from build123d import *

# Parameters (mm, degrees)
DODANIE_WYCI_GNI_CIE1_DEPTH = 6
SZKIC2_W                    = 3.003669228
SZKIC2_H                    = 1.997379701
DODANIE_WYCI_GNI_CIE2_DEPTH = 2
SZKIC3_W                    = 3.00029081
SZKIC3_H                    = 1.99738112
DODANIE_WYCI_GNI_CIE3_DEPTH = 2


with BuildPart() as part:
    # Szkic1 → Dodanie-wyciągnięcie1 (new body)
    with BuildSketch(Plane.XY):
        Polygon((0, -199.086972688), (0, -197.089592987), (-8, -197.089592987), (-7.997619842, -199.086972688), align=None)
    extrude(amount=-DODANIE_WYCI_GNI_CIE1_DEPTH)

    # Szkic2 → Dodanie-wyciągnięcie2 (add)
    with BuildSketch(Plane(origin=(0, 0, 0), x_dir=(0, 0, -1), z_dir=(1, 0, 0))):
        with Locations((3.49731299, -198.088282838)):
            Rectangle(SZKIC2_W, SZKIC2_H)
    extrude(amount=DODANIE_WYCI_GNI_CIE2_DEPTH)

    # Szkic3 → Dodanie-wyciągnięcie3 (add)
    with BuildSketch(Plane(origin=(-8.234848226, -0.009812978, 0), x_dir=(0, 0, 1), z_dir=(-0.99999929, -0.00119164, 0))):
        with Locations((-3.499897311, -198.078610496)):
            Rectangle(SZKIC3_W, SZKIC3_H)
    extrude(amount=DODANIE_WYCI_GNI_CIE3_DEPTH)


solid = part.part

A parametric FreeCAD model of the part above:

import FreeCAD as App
import Part
import Sketcher


def add_polygon(sketch, points):
    """Adds a closed chain of lines whose ends are joined by coincident constraints."""
    first, n = sketch.GeometryCount, len(points)
    for a, b in zip(points, points[1:] + points[:1]):
        sketch.addGeometry(Part.LineSegment(App.Vector(*a, 0), App.Vector(*b, 0)), False)
    for i in range(n):
        sketch.addConstraint(Sketcher.Constraint("Coincident", first + i, 2, first + (i + 1) % n, 1))

doc = App.newDocument("Part")
body = doc.addObject("PartDesign::Body", "Body")

sketch1 = body.newObject("Sketcher::SketchObject", "Sketch")
sketch1.AttachmentSupport = (doc.getObject("XY_Plane"), [""])
sketch1.MapMode = "FlatFace"
add_polygon(sketch1, [(0, -199.086973), (0, -197.089593), (-8, -197.089593), (-7.99762, -199.086973)])
sketch1.addConstraint([
    Sketcher.Constraint("Vertical", 0),
    Sketcher.Constraint("Horizontal", 1),
    Sketcher.Constraint("Horizontal", 3),
    Sketcher.Constraint("PointOnObject", 0, 2, -2),
    Sketcher.Constraint("DistanceX", 1, 2, 1, 1, 8.0),
    Sketcher.Constraint("DistanceX", 3, 1, 3, 2, 7.99762),
    Sketcher.Constraint("DistanceY", 0, 1, 0, 2, 1.99738),
    Sketcher.Constraint("DistanceY", 0, 2, -1, 1, 197.089593),
])
pad1 = body.newObject("PartDesign::Pad", "Pad")
pad1.Profile = sketch1
pad1.Length = 6
pad1.Reversed = True

sketch2 = body.newObject("Sketcher::SketchObject", "Sketch001")
sketch2.AttachmentSupport = (doc.getObject("YZ_Plane"), [""])
sketch2.MapMode = "FlatFace"
add_polygon(sketch2, [(-197.089593, -1.995478), (-199.086973, -1.995478), (-199.086973, -4.999148), (-197.089593, -4.999148)])
sketch2.addConstraint([
    Sketcher.Constraint("Horizontal", 0),
    Sketcher.Constraint("Vertical", 1),
    Sketcher.Constraint("Horizontal", 2),
    Sketcher.Constraint("Vertical", 3),
    Sketcher.Constraint("DistanceX", 0, 2, 0, 1, 1.99738),
    Sketcher.Constraint("DistanceY", 1, 2, 1, 1, 3.003669),
    Sketcher.Constraint("DistanceY", 0, 2, -1, 1, 1.995478),
    Sketcher.Constraint("DistanceX", 0, 2, -1, 1, 199.086973),
])
pad2 = body.newObject("PartDesign::Pad", "Pad001")
pad2.Profile = sketch2
pad2.Length = 2

sketch3 = body.newObject("Sketcher::SketchObject", "Sketch002")
sketch3.Placement = App.Placement(App.Vector(-8.234848, -0.009813, 0), App.Rotation(App.Vector(0, 0, 1), App.Vector(-0.00119164, 0.99999929, 0), App.Vector(-0.99999929, -0.00119164, 0), "ZXY"))
add_polygon(sketch3, [(-5.000043, -197.07992), (-5.000043, -199.077301), (-1.999752, -199.077301), (-1.999752, -197.07992)])
sketch3.addConstraint([
    Sketcher.Constraint("Vertical", 0),
    Sketcher.Constraint("Horizontal", 1),
    Sketcher.Constraint("Vertical", 2),
    Sketcher.Constraint("Horizontal", 3),
    Sketcher.Constraint("DistanceX", 1, 1, 1, 2, 3.000291),
    Sketcher.Constraint("DistanceY", 0, 2, 0, 1, 1.997381),
    Sketcher.Constraint("DistanceY", 0, 2, -1, 1, 199.077301),
    Sketcher.Constraint("DistanceX", 1, 2, -1, 1, 1.999752),
])
pad3 = body.newObject("PartDesign::Pad", "Pad002")
pad3.Profile = sketch3
pad3.Length = 2

doc.recompute()
